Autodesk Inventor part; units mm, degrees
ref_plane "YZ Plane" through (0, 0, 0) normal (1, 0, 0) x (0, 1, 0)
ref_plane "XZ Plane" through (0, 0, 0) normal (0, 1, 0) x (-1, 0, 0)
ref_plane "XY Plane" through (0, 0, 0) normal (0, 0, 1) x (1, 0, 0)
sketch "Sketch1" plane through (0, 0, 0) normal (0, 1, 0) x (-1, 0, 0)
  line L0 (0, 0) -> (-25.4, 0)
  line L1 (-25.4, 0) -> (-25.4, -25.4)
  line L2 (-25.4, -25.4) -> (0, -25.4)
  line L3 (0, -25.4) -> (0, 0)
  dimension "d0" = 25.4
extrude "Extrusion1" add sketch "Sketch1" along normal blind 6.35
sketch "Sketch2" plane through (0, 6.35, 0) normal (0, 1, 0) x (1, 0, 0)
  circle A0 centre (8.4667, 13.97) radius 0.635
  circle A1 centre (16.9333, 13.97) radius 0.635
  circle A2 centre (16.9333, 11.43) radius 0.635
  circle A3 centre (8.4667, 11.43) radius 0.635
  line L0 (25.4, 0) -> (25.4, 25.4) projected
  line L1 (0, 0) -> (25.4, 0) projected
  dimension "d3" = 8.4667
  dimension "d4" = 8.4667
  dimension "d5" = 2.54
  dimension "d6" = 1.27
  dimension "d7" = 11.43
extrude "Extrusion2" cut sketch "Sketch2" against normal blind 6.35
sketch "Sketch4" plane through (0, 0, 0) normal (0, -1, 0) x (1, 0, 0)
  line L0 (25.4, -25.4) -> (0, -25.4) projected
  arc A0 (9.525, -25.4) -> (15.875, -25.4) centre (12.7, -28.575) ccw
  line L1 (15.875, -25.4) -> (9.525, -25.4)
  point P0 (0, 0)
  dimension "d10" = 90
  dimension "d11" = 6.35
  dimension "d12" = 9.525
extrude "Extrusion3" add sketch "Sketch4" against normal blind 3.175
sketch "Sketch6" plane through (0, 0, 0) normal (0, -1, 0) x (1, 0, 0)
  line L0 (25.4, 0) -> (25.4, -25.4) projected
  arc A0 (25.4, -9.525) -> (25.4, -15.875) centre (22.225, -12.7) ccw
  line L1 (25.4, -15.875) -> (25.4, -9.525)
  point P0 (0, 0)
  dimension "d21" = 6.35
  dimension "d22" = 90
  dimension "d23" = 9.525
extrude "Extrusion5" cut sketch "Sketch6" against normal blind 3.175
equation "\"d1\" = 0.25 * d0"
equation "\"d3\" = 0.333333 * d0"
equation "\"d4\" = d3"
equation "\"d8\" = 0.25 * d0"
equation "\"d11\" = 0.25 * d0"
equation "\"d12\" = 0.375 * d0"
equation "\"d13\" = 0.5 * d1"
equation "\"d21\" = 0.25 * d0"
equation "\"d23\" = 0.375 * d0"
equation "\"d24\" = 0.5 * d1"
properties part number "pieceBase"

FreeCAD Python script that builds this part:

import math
import FreeCAD as App
import Part
import Sketcher

V = App.Vector
Q = App.Units.Quantity


def add_polygon(sketch, points):
    """Adds a closed chain of lines whose ends are joined by coincident constraints."""
    first, n = sketch.GeometryCount, len(points)
    for a, b in zip(points, points[1:] + points[:1]):
        sketch.addGeometry(Part.LineSegment(App.Vector(*a, 0), App.Vector(*b, 0)), False)
    for i in range(n):
        sketch.addConstraint(Sketcher.Constraint("Coincident", first + i, 2, first + (i + 1) % n, 1))

doc = App.newDocument("Part")
body = doc.addObject("PartDesign::Body", "Body")

sketch1 = body.newObject("Sketcher::SketchObject", "Sketch")
sketch1.AttachmentSupport = (doc.getObject("XZ_Plane"), [""])
sketch1.MapMode = "FlatFace"
add_polygon(sketch1, [(0, -25), (0, 0), (25, 0), (25, -25)])
sketch1.addConstraint(Sketcher.Constraint("Vertical", 0))
sketch1.addConstraint(Sketcher.Constraint("Horizontal", 1))
sketch1.addConstraint(Sketcher.Constraint("Vertical", 2))
sketch1.addConstraint(Sketcher.Constraint("Horizontal", 3))
sketch1.addConstraint(Sketcher.Constraint("Coincident", 0, 2, -1, 1))
sketch1.addConstraint(Sketcher.Constraint("Equal", 3, 0))
sketch1.addConstraint(Sketcher.Constraint("DistanceX", 1, 1, 1, 2, Q("1 in")))
pad1 = body.newObject("PartDesign::Pad", "Pad")
pad1.Profile = sketch1
pad1.Length = Q("0.25 in")
pad1.Reversed = True

sketch2 = body.newObject("Sketcher::SketchObject", "Sketch001")
sketch2.AttachmentSupport = (doc.getObject("XZ_Plane"), [""])
sketch2.MapMode = "FlatFace"
sketch2.AttachmentOffset = App.Placement(V(0, 0, -0.25 * 25.4), App.Rotation())
sketch2.addGeometry(Part.Circle(V(8.5, -14, 0), V(0, 0, 1), 0.6), False)
sketch2.addGeometry(Part.Circle(V(16.9, -14, 0), V(0, 0, 1), 0.6), False)
sketch2.addGeometry(Part.Circle(V(16.9, -11.4, 0), V(0, 0, 1), 0.6), False)
sketch2.addGeometry(Part.Circle(V(8.5, -11.4, 0), V(0, 0, 1), 0.6), False)
sketch2.addConstraint(Sketcher.Constraint("Equal", 0, 1))
sketch2.addConstraint(Sketcher.Constraint("Equal", 1, 2))
sketch2.addConstraint(Sketcher.Constraint("Equal", 2, 3))
sketch2.addConstraint(Sketcher.Constraint("Horizontal", 0, 3, 1, 3))
sketch2.addConstraint(Sketcher.Constraint("Horizontal", 2, 3, 3, 3))
sketch2.addConstraint(Sketcher.Constraint("Vertical", 1, 3, 2, 3))
sketch2.addConstraint(Sketcher.Constraint("Vertical", 0, 3, 3, 3))
sketch2.addConstraint(Sketcher.Constraint("Diameter", 0, Q("0.05 in")))
sketch2.addConstraint(Sketcher.Constraint("DistanceY", 1, 3, 2, 3, Q("0.1 in")))
sketch2.addConstraint(Sketcher.Constraint("DistanceY", 2, 3, -1, 1, Q("0.45 in")))
sketch2.addConstraint(Sketcher.Constraint("DistanceX", -1, 1, 0, 3, Q("8.4667 mm")))
sketch2.addConstraint(Sketcher.Constraint("DistanceX", 0, 3, 1, 3, Q("8.4666 mm")))
pocket1 = body.newObject("PartDesign::Pocket", "Pocket")
pocket1.Profile = sketch2
pocket1.Length = Q("0.25 in")
pocket1.Reversed = True

sketch3 = body.newObject("Sketcher::SketchObject", "Sketch002")
sketch3.AttachmentSupport = (doc.getObject("XZ_Plane"), [""])
sketch3.MapMode = "FlatFace"
sketch3.addGeometry(Part.ArcOfCircle(Part.Circle(V(12.7, -28.6, 0), V(0, 0, 1), 4.5), math.radians(135), math.radians(405)), False)
sketch3.addGeometry(Part.LineSegment(V(15.9, -25.4, 0), V(9.5, -25.4, 0)), False)
sketch3.addConstraint(Sketcher.Constraint("Coincident", 0, 1, 1, 2))
sketch3.addConstraint(Sketcher.Constraint("Coincident", 1, 1, 0, 2))
sketch3.addConstraint(Sketcher.Constraint("Horizontal", 1))
sketch3.addConstraint(Sketcher.Constraint("DistanceX", 1, 2, 1, 1, Q("0.25 in")))
sketch3.addConstraint(Sketcher.Constraint("DistanceX", -1, 1, 0, 1, Q("0.375 in")))
sketch3.addConstraint(Sketcher.Constraint("DistanceY", 0, 1, -1, 1, Q("1 in")))
sketch3.addConstraint(Sketcher.Constraint("Radius", 0, Q("4.4901 mm")))
pad2 = body.newObject("PartDesign::Pad", "Pad001")
pad2.Profile = sketch3
pad2.Length = Q("0.125 in")
pad2.Reversed = True

sketch4 = body.newObject("Sketcher::SketchObject", "Sketch003")
sketch4.AttachmentSupport = (doc.getObject("XZ_Plane"), [""])
sketch4.MapMode = "FlatFace"
sketch4.addGeometry(Part.LineSegment(V(25.4, -15.9, 0), V(25.4, -9.5, 0)), False)
sketch4.addGeometry(Part.ArcOfCircle(Part.Circle(V(22.2, -12.7, 0), V(0, 0, 1), 4.5), math.radians(45), math.radians(315)), False)
sketch4.addConstraint(Sketcher.Constraint("Coincident", 0, 1, 1, 2))
sketch4.addConstraint(Sketcher.Constraint("Coincident", 1, 1, 0, 2))
sketch4.addConstraint(Sketcher.Constraint("Vertical", 0))
sketch4.addConstraint(Sketcher.Constraint("DistanceY", 0, 1, 0, 2, Q("0.25 in")))
sketch4.addConstraint(Sketcher.Constraint("DistanceY", 1, 1, -1, 1, Q("0.375 in")))
sketch4.addConstraint(Sketcher.Constraint("DistanceX", -1, 1, 0, 1, Q("1 in")))
sketch4.addConstraint(Sketcher.Constraint("Radius", 1, Q("4.4901 mm")))
pocket2 = body.newObject("PartDesign::Pocket", "Pocket001")
pocket2.Profile = sketch4
pocket2.Length = Q("0.125 in")

doc.recompute()
